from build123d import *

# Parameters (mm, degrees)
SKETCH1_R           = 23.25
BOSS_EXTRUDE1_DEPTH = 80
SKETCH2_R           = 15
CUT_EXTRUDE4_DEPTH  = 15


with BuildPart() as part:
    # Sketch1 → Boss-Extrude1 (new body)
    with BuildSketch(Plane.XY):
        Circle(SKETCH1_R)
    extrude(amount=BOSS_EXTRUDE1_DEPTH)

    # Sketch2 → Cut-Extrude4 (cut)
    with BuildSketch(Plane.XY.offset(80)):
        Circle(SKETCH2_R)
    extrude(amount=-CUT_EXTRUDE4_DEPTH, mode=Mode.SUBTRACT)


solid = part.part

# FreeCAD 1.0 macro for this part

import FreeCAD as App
import Part
import Sketcher
Q = App.Units.Quantity

doc = App.newDocument("Part")
body = doc.addObject("PartDesign::Body", "Body")

# Sketch on XY plane
sketch1 = body.newObject("Sketcher::SketchObject", "Sketch")
sketch1.AttachmentSupport = (doc.getObject("XY_Plane"), [""])
sketch1.MapMode = "FlatFace"
sketch1.addGeometry(Part.Circle(App.Vector(0, 0, 0), App.Vector(0, 0, 1), 23), False)
sketch1.addConstraint([
    Sketcher.Constraint("Coincident", 0, 3, -1, 1),
    Sketcher.Constraint("Diameter", 0, Q("46.5 mm")),
])
pad1 = body.newObject("PartDesign::Pad", "Pad")
pad1.Profile = sketch1
pad1.Length = 80

# Sketch on XY plane
sketch2 = body.newObject("Sketcher::SketchObject", "Sketch001")
sketch2.AttachmentSupport = (doc.getObject("XY_Plane"), [""])
sketch2.MapMode = "FlatFace"
sketch2.AttachmentOffset = App.Placement(App.Vector(0, 0, 80), App.Rotation())
sketch2.addGeometry(Part.Circle(App.Vector(0, 0, 0), App.Vector(0, 0, 1), 15), False)
sketch2.addConstraint([
    Sketcher.Constraint("Coincident", 0, 3, -1, 1),
    Sketcher.Constraint("Diameter", 0, Q("30 mm")),
])
pocket1 = body.newObject("PartDesign::Pocket", "Pocket")
pocket1.Profile = sketch2
pocket1.Length = 15

doc.recompute()
